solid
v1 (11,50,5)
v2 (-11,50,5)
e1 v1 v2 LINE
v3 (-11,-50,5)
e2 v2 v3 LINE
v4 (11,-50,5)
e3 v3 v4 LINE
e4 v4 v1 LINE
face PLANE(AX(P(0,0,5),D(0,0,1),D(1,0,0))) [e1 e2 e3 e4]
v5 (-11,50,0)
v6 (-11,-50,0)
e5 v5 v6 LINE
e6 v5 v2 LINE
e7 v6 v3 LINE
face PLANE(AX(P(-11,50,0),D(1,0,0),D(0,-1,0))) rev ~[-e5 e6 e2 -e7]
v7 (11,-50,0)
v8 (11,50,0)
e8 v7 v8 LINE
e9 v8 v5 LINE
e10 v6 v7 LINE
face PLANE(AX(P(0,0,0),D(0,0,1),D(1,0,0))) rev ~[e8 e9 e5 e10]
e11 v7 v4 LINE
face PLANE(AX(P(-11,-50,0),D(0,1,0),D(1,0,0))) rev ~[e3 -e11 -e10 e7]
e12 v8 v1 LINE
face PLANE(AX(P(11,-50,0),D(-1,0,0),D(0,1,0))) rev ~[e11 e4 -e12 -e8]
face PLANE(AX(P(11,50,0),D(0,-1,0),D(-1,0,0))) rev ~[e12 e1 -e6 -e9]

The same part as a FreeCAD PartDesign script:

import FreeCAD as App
import Part
import Sketcher

doc = App.newDocument("Part")
body = doc.addObject("PartDesign::Body", "Body")

# Sketch on XY plane
sketch1 = body.newObject("Sketcher::SketchObject", "Sketch")
sketch1.AttachmentSupport = (doc.getObject("XY_Plane"), [""])
sketch1.MapMode = "FlatFace"
sketch1.addGeometry([
    Part.LineSegment(App.Vector(-11, 50, 0), App.Vector(-11, -50, 0)),
    Part.LineSegment(App.Vector(-11, -50, 0), App.Vector(11, -50, 0)),
    Part.LineSegment(App.Vector(11, -50, 0), App.Vector(11, 50, 0)),
    Part.LineSegment(App.Vector(11, 50, 0), App.Vector(-11, 50, 0)),
], False)
sketch1.addConstraint([
    Sketcher.Constraint("Coincident", 0, 2, 1, 1),
    Sketcher.Constraint("Coincident", 1, 2, 2, 1),
    Sketcher.Constraint("Coincident", 2, 2, 3, 1),
    Sketcher.Constraint("Coincident", 3, 2, 0, 1),
    Sketcher.Constraint("Vertical", 0),
    Sketcher.Constraint("Horizontal", 1),
    Sketcher.Constraint("Vertical", 2),
    Sketcher.Constraint("Horizontal", 3),
    Sketcher.Constraint("Symmetric", 0, 2, 2, 2, -1, 1),
    Sketcher.Constraint("DistanceX", 1, 1, 1, 2, 22.0),
    Sketcher.Constraint("DistanceY", 0, 2, 0, 1, 100.0),
])
pad1 = body.newObject("PartDesign::Pad", "Pad")
pad1.Profile = sketch1
pad1.Length = 5

doc.recompute()
